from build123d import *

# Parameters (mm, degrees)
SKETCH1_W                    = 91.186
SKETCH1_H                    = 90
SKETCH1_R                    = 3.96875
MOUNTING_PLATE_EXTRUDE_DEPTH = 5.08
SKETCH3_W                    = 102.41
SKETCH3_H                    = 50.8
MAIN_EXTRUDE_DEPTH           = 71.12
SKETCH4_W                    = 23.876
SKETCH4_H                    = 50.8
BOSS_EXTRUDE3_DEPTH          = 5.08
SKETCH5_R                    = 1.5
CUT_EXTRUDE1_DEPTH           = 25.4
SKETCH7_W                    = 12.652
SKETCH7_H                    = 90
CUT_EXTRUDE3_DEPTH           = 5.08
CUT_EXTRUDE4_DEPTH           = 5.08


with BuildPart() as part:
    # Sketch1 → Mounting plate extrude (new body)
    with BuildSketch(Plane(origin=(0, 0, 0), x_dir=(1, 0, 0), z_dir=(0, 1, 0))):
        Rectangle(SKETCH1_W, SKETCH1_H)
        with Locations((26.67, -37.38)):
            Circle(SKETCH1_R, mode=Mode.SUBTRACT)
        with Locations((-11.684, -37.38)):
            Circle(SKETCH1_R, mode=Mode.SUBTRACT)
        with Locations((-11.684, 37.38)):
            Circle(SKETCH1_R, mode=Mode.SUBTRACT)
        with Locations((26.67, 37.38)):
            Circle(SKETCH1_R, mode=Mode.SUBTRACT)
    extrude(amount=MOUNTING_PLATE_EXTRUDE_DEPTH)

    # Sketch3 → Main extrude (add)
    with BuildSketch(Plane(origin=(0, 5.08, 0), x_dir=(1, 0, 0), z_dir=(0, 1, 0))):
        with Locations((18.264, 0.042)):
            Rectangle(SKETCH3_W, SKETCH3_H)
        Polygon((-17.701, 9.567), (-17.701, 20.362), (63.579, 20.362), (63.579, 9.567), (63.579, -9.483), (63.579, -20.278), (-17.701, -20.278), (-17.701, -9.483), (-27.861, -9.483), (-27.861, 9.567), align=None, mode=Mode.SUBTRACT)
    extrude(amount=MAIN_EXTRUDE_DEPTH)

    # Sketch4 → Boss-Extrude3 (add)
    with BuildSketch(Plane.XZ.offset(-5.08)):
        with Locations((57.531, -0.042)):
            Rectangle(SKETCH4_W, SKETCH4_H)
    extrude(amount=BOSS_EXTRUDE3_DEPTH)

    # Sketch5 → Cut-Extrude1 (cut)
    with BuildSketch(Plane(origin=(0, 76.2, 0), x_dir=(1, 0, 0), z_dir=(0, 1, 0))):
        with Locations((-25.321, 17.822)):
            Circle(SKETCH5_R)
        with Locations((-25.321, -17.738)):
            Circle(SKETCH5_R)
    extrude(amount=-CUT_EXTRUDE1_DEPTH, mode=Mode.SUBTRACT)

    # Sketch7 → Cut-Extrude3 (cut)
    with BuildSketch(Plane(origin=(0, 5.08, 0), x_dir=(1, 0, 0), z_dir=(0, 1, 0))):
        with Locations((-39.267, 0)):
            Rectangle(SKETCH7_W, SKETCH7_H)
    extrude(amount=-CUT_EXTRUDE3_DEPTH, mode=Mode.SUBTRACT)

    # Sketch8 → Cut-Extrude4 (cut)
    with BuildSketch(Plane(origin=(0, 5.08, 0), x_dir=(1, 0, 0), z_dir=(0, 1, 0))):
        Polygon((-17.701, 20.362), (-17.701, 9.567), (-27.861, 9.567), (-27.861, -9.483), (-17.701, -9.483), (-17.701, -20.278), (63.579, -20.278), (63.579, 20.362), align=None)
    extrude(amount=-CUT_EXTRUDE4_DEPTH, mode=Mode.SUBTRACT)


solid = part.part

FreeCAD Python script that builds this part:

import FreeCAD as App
import Part
import Sketcher

V = App.Vector
Q = App.Units.Quantity

doc = App.newDocument("Part")
body = doc.addObject("PartDesign::Body", "Body")

# Sketch on XZ plane
sketch1 = body.newObject("Sketcher::SketchObject", "Sketch")
sketch1.AttachmentSupport = (doc.getObject("XZ_Plane"), [""])
sketch1.MapMode = "FlatFace"
sketch1.addGeometry([
    Part.LineSegment(V(-45.6, -45, 0), V(-45.6, 45, 0)),  # 0
    Part.LineSegment(V(-45.6, 45, 0), V(45.6, 45, 0)),  # 1
    Part.LineSegment(V(45.6, 45, 0), V(45.6, -45, 0)),  # 2
    Part.LineSegment(V(45.6, -45, 0), V(-45.6, -45, 0)),  # 3
    Part.Circle(V(-11.7, 37.4, 0), V(0, 0, 1), 4),  # 4
    Part.Circle(V(26.7, 37.4, 0), V(0, 0, 1), 4),  # 5
    Part.Circle(V(-11.7, -37.4, 0), V(0, 0, 1), 4),  # 6
    Part.Circle(V(26.7, -37.4, 0), V(0, 0, 1), 4),  # 7
], False)
sketch1.addConstraint([
    Sketcher.Constraint("Coincident", 0, 2, 1, 1),
    Sketcher.Constraint("Coincident", 1, 2, 2, 1),
    Sketcher.Constraint("Coincident", 2, 2, 3, 1),
    Sketcher.Constraint("Coincident", 3, 2, 0, 1),
    Sketcher.Constraint("Vertical", 0),
    Sketcher.Constraint("Horizontal", 1),
    Sketcher.Constraint("Vertical", 2),
    Sketcher.Constraint("Horizontal", 3),
    Sketcher.Constraint("Equal", 4, 5),
    Sketcher.Constraint("Equal", 5, 6),
    Sketcher.Constraint("Equal", 6, 7),
    Sketcher.Constraint("Symmetric", 0, 2, 2, 2, -1, 1),
    Sketcher.Constraint("Symmetric", 4, 3, 6, 3, -1),
    Sketcher.Constraint("Symmetric", 5, 3, 7, 3, -1),
    Sketcher.Constraint("Horizontal", 4, 3, 5, 3),
    Sketcher.Constraint("Diameter", 4, Q("0.3125 in")),
    Sketcher.Constraint("DistanceX", 1, 1, 1, 2, Q("3.59 in")),
    Sketcher.Constraint("DistanceY", 4, 3, 0, 2, Q("0.3 in")),
    Sketcher.Constraint("DistanceX", 4, 3, -1, 1, Q("0.46 in")),
    Sketcher.Constraint("DistanceX", -1, 1, 5, 3, Q("1.05 in")),
    Sketcher.Constraint("DistanceY", 0, 1, 0, 2, Q("90 mm")),
])
pad1 = body.newObject("PartDesign::Pad", "Pad")
pad1.Profile = sketch1
pad1.Length = Q("0.2 in")
pad1.Reversed = True

# Sketch on XZ plane
sketch2 = body.newObject("Sketcher::SketchObject", "Sketch001")
sketch2.AttachmentSupport = (doc.getObject("XZ_Plane"), [""])
sketch2.MapMode = "FlatFace"
sketch2.AttachmentOffset = App.Placement(V(0, 0, -0.2 * 25.4), App.Rotation())
sketch2.addGeometry([
    Part.LineSegment(V(-33, -25, 0), V(-33, 25, 0)),  # 0
    Part.LineSegment(V(-33, 25, 0), V(69, 25, 0)),  # 1
    Part.LineSegment(V(69, 25, 0), V(69, -25, 0)),  # 2
    Part.LineSegment(V(69, -25, 0), V(-33, -25, 0)),  # 3
    Part.LineSegment(V(-28, -10, 0), V(-18, -10, 0)),  # 4
    Part.LineSegment(V(-18, -10, 0), V(-18, -20, 0)),  # 5
    Part.LineSegment(V(-18, -20, 0), V(64, -20, 0)),  # 6
    Part.LineSegment(V(64, -20, 0), V(64, 20, 0)),  # 7
    Part.LineSegment(V(64, 20, 0), V(-18, 20, 0)),  # 8
    Part.LineSegment(V(-18, 20, 0), V(-18, 9, 0)),  # 9
    Part.LineSegment(V(-18, 9, 0), V(-28, 9, 0)),  # 10
    Part.LineSegment(V(-28, 9, 0), V(-28, -10, 0)),  # 11
], False)
sketch2.addConstraint([
    Sketcher.Constraint("Coincident", 0, 2, 1, 1),
    Sketcher.Constraint("Coincident", 1, 2, 2, 1),
    Sketcher.Constraint("Coincident", 2, 2, 3, 1),
    Sketcher.Constraint("Coincident", 3, 2, 0, 1),
    Sketcher.Constraint("Coincident", 4, 2, 5, 1),
    Sketcher.Constraint("Coincident", 5, 2, 6, 1),
    Sketcher.Constraint("Coincident", 6, 2, 7, 1),
    Sketcher.Constraint("Coincident", 7, 2, 8, 1),
    Sketcher.Constraint("Coincident", 8, 2, 9, 1),
    Sketcher.Constraint("Coincident", 9, 2, 10, 1),
    Sketcher.Constraint("Coincident", 10, 2, 11, 1),
    Sketcher.Constraint("Coincident", 11, 2, 4, 1),
    Sketcher.Constraint("Vertical", 0),
    Sketcher.Constraint("Horizontal", 1),
    Sketcher.Constraint("Vertical", 2),
    Sketcher.Constraint("Horizontal", 3),
    Sketcher.Constraint("Horizontal", 4),
    Sketcher.Constraint("Vertical", 5),
    Sketcher.Constraint("Horizontal", 6),
    Sketcher.Constraint("Vertical", 7),
    Sketcher.Constraint("Horizontal", 8),
    Sketcher.Constraint("Vertical", 9),
    Sketcher.Constraint("Horizontal", 10),
    Sketcher.Constraint("Vertical", 11),
    Sketcher.Constraint("Vertical", 5, 2, 8, 2),
    Sketcher.Constraint("Equal", 5, 9),
    Sketcher.Constraint("DistanceY", 0, 1, 0, 2, Q("2 in")),
    Sketcher.Constraint("DistanceX", 4, 1, 4, 2, Q("0.4 in")),
    Sketcher.Constraint("DistanceX", 6, 1, 6, 2, Q("3.2 in")),
    Sketcher.Constraint("DistanceY", 7, 1, 7, 2, Q("1.6 in")),
    Sketcher.Constraint("DistanceY", 11, 2, 11, 1, Q("0.75 in")),
    Sketcher.Constraint("DistanceX", 3, 2, 4, 2, Q("0.6 in")),
    Sketcher.Constraint("DistanceY", 3, 2, 5, 2, Q("0.2 in")),
    Sketcher.Constraint("DistanceX", -1, 1, 1, 2, Q("2.735 in")),
    Sketcher.Constraint("DistanceX", 1, 1, 1, 2, Q("102.41 mm")),
    Sketcher.Constraint("DistanceY", -1, 1, 0, 2, Q("25.358 mm")),
])
pad2 = body.newObject("PartDesign::Pad", "Pad001")
pad2.Profile = sketch2
pad2.Length = Q("2.8 in")
pad2.Reversed = True

# Sketch on XZ plane
sketch3 = body.newObject("Sketcher::SketchObject", "Sketch002")
sketch3.AttachmentSupport = (doc.getObject("XZ_Plane"), [""])
sketch3.MapMode = "FlatFace"
sketch3.AttachmentOffset = App.Placement(V(0, 0, -0.2 * 25.4), App.Rotation())
sketch3.addGeometry([
    Part.LineSegment(V(46, 25, 0), V(46, -25, 0)),
    Part.LineSegment(V(46, -25, 0), V(69, -25, 0)),
    Part.LineSegment(V(69, -25, 0), V(69, 25, 0)),
    Part.LineSegment(V(69, 25, 0), V(46, 25, 0)),
], False)
sketch3.addConstraint([
    Sketcher.Constraint("Coincident", 0, 2, 1, 1),
    Sketcher.Constraint("Coincident", 1, 2, 2, 1),
    Sketcher.Constraint("Coincident", 2, 2, 3, 1),
    Sketcher.Constraint("Coincident", 3, 2, 0, 1),
    Sketcher.Constraint("Vertical", 0),
    Sketcher.Constraint("Horizontal", 1),
    Sketcher.Constraint("Vertical", 2),
    Sketcher.Constraint("Horizontal", 3),
    Sketcher.Constraint("DistanceY", 0, 2, 0, 1, Q("2 in")),
    Sketcher.Constraint("DistanceX", 1, 1, 1, 2, Q("0.94 in")),
    Sketcher.Constraint("DistanceX", -1, 1, 0, 2, Q("1.795 in")),
    Sketcher.Constraint("DistanceY", 0, 2, -1, 1, Q("25.442 mm")),
])
pad3 = body.newObject("PartDesign::Pad", "Pad002")
pad3.Profile = sketch3
pad3.Length = Q("0.2 in")

# Sketch on XZ plane
sketch4 = body.newObject("Sketcher::SketchObject", "Sketch003")
sketch4.AttachmentSupport = (doc.getObject("XZ_Plane"), [""])
sketch4.MapMode = "FlatFace"
sketch4.AttachmentOffset = App.Placement(V(0, 0, -3 * 25.4), App.Rotation())
sketch4.addGeometry([
    Part.Circle(V(-25.3, -17.8, 0), V(0, 0, 1), 1.5),
    Part.Circle(V(-25.3, 17.7, 0), V(0, 0, 1), 1.5),
], False)
sketch4.addConstraint([
    Sketcher.Constraint("Equal", 0, 1),
    Sketcher.Constraint("Vertical", 0, 3, 1, 3),
    Sketcher.Constraint("DistanceY", 0, 3, 1, 3, Q("1.4 in")),
    Sketcher.Constraint("Diameter", 0, Q("3 mm")),
    Sketcher.Constraint("DistanceX", 0, 3, -1, 1, Q("25.321 mm")),
    Sketcher.Constraint("DistanceY", 0, 3, -1, 1, Q("17.822 mm")),
])
pocket1 = body.newObject("PartDesign::Pocket", "Pocket")
pocket1.Profile = sketch4
pocket1.Length = Q("1 in")
pocket1.Reversed = True

# Sketch on XZ plane
sketch5 = body.newObject("Sketcher::SketchObject", "Sketch004")
sketch5.AttachmentSupport = (doc.getObject("XZ_Plane"), [""])
sketch5.MapMode = "FlatFace"
sketch5.AttachmentOffset = App.Placement(V(0, 0, -0.2 * 25.4), App.Rotation())
sketch5.addGeometry([
    Part.LineSegment(V(-46, -45, 0), V(-46, 45, 0)),
    Part.LineSegment(V(-46, 45, 0), V(-33, 45, 0)),
    Part.LineSegment(V(-33, 45, 0), V(-33, -45, 0)),
    Part.LineSegment(V(-33, -45, 0), V(-46, -45, 0)),
], False)
sketch5.addConstraint([
    Sketcher.Constraint("Coincident", 0, 2, 1, 1),
    Sketcher.Constraint("Coincident", 1, 2, 2, 1),
    Sketcher.Constraint("Coincident", 2, 2, 3, 1),
    Sketcher.Constraint("Coincident", 3, 2, 0, 1),
    Sketcher.Constraint("Vertical", 0),
    Sketcher.Constraint("Horizontal", 1),
    Sketcher.Constraint("Vertical", 2),
    Sketcher.Constraint("Horizontal", 3),
    Sketcher.Constraint("DistanceX", 0, 2, -1, 1, Q("1.795 in")),
    Sketcher.Constraint("DistanceX", 1, 1, 1, 2, Q("12.652 mm")),
    Sketcher.Constraint("DistanceY", 0, 1, 0, 2, Q("90 mm")),
    Sketcher.Constraint("DistanceY", -1, 1, 0, 2, Q("45 mm")),
])
pocket2 = body.newObject("PartDesign::Pocket", "Pocket001")
pocket2.Profile = sketch5
pocket2.Length = Q("0.2 in")
pocket2.Reversed = True

# Sketch on XZ plane
sketch6 = body.newObject("Sketcher::SketchObject", "Sketch005")
sketch6.AttachmentSupport = (doc.getObject("XZ_Plane"), [""])
sketch6.MapMode = "FlatFace"
sketch6.AttachmentOffset = App.Placement(V(0, 0, -0.2 * 25.4), App.Rotation())
sketch6.addGeometry([
    Part.LineSegment(V(-18, -20, 0), V(-18, -10, 0)),  # 0
    Part.LineSegment(V(-18, -10, 0), V(-28, -10, 0)),  # 1
    Part.LineSegment(V(-28, -10, 0), V(-28, 9, 0)),  # 2
    Part.LineSegment(V(-28, 9, 0), V(-18, 9, 0)),  # 3
    Part.LineSegment(V(-18, 9, 0), V(-18, 20, 0)),  # 4
    Part.LineSegment(V(-18, 20, 0), V(64, 20, 0)),  # 5
    Part.LineSegment(V(64, 20, 0), V(64, -20, 0)),  # 6
    Part.LineSegment(V(64, -20, 0), V(-18, -20, 0)),  # 7
], False)
sketch6.addConstraint([
    Sketcher.Constraint("Coincident", 0, 2, 1, 1),
    Sketcher.Constraint("Coincident", 1, 2, 2, 1),
    Sketcher.Constraint("Coincident", 2, 2, 3, 1),
    Sketcher.Constraint("Coincident", 3, 2, 4, 1),
    Sketcher.Constraint("Coincident", 4, 2, 5, 1),
    Sketcher.Constraint("Coincident", 5, 2, 6, 1),
    Sketcher.Constraint("Coincident", 6, 2, 7, 1),
    Sketcher.Constraint("Coincident", 7, 2, 0, 1),
    Sketcher.Constraint("Vertical", 0),
    Sketcher.Constraint("Horizontal", 1),
    Sketcher.Constraint("Vertical", 2),
    Sketcher.Constraint("Horizontal", 3),
    Sketcher.Constraint("Vertical", 4),
    Sketcher.Constraint("Horizontal", 5),
    Sketcher.Constraint("Vertical", 6),
    Sketcher.Constraint("Horizontal", 7),
    Sketcher.Constraint("Vertical", 0, 2, 3, 2),
    Sketcher.Constraint("Equal", 0, 4),
    Sketcher.Constraint("DistanceX", 1, 2, 1, 1, Q("0.4 in")),
    Sketcher.Constraint("DistanceX", 5, 1, 5, 2, Q("3.2 in")),
    Sketcher.Constraint("DistanceY", 6, 2, 6, 1, Q("1.6 in")),
    Sketcher.Constraint("DistanceY", 2, 1, 2, 2, Q("0.75 in")),
    Sketcher.Constraint("DistanceX", 0, 2, -1, 1, Q("17.701 mm")),
    Sketcher.Constraint("DistanceY", 0, 2, -1, 1, Q("9.567 mm")),
])
pocket3 = body.newObject("PartDesign::Pocket", "Pocket002")
pocket3.Profile = sketch6
pocket3.Length = Q("0.2 in")
pocket3.Reversed = True

doc.recompute()
